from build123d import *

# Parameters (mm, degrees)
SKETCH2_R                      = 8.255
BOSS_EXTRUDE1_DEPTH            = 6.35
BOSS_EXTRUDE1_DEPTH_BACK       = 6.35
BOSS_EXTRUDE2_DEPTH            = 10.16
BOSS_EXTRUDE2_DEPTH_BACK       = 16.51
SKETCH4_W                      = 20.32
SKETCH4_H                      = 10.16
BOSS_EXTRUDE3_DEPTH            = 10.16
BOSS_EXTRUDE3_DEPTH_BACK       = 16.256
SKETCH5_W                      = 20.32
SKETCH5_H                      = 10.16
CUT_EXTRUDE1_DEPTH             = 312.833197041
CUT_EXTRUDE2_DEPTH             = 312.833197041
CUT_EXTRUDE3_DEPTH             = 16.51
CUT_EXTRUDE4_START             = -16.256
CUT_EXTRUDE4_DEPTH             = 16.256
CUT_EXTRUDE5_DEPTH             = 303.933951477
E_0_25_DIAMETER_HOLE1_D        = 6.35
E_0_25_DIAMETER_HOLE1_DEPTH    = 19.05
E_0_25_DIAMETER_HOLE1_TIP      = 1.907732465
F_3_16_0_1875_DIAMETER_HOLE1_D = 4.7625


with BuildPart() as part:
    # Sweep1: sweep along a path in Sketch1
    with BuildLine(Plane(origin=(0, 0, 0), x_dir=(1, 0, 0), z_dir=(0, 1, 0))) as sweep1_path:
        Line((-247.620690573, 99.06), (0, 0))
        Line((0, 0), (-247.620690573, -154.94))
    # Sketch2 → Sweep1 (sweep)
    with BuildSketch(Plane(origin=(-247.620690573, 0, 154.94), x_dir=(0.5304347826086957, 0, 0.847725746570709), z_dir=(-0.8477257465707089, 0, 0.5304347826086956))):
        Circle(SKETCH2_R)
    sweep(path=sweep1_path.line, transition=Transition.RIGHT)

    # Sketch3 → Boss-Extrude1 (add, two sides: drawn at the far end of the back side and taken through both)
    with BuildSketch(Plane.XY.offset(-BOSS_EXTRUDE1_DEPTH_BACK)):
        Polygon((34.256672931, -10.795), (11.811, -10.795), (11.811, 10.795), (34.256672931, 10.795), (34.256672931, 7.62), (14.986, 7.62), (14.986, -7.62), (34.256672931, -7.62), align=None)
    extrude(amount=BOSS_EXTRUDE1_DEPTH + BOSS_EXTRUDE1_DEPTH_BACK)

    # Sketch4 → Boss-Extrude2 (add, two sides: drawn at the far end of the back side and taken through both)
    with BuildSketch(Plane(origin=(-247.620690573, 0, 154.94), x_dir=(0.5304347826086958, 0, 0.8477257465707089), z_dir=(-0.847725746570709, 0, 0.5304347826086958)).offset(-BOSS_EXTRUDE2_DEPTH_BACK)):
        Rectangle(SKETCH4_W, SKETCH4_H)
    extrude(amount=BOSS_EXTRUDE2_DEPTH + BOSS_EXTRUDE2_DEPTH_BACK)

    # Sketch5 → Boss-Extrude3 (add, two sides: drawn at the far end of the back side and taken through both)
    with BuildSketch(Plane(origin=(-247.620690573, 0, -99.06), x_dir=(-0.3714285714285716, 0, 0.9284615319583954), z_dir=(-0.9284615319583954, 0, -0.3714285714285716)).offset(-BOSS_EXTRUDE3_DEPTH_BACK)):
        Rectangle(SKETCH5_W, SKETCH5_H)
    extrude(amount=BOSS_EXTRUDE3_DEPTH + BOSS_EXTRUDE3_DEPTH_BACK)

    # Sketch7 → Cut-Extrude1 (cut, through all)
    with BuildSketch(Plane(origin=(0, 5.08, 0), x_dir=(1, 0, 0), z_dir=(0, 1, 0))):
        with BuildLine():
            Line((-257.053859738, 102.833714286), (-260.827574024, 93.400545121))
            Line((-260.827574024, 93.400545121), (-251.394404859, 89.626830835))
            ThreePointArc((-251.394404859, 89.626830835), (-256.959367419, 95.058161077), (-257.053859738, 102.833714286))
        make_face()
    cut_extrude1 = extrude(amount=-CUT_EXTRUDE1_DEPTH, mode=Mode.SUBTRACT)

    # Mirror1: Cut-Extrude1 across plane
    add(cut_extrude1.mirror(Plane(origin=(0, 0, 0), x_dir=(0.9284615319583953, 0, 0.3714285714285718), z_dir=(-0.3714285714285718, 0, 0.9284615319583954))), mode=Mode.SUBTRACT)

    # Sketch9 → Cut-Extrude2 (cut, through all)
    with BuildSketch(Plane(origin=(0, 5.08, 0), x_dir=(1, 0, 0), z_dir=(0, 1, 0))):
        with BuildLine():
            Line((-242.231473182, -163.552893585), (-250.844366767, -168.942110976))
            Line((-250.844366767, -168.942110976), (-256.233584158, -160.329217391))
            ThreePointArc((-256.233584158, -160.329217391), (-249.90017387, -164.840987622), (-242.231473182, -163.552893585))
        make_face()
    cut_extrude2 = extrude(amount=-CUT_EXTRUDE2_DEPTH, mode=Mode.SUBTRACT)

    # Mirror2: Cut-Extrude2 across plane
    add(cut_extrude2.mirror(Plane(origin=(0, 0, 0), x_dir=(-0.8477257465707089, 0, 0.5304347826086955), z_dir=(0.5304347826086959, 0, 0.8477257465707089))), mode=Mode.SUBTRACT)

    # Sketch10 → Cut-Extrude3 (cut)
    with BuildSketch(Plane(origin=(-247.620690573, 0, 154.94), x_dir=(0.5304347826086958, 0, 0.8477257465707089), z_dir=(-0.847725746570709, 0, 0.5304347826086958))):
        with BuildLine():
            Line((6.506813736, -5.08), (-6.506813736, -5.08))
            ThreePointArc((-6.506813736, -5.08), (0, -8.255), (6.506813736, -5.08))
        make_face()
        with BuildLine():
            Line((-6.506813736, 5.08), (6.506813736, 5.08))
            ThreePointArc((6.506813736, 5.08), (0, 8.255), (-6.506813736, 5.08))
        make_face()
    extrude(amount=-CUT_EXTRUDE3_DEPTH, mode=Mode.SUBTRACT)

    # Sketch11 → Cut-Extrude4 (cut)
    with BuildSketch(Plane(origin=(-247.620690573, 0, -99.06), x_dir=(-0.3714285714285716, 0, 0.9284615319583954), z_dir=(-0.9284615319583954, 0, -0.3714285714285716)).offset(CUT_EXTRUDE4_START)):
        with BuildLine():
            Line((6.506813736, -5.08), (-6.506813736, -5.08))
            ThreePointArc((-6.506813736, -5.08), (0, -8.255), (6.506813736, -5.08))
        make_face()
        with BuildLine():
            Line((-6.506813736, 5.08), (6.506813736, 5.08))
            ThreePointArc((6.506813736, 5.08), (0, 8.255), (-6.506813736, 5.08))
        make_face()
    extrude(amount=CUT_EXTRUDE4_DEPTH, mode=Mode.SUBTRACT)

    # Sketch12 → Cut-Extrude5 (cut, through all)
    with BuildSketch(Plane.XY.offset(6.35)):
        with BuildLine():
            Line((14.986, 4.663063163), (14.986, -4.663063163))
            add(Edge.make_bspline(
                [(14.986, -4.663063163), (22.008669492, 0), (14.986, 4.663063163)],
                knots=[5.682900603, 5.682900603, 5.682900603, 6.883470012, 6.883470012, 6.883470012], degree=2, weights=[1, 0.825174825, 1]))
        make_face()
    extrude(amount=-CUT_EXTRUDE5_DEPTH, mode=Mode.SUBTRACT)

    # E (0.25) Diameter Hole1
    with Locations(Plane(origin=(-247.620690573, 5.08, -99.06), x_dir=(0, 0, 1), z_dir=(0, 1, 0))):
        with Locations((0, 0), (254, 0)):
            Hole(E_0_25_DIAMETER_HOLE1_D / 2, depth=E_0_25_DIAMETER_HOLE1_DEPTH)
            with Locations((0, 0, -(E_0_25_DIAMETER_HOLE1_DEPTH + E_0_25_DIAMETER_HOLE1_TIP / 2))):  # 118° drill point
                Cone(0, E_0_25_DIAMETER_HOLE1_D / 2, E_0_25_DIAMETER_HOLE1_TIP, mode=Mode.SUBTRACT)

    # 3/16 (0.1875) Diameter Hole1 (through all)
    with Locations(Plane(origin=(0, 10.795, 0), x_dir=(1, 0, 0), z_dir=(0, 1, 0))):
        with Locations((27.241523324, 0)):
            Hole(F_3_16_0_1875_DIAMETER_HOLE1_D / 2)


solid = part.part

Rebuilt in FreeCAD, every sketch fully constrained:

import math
import FreeCAD as App
import Part
import Sketcher
from FreeCAD import Vector
Q = App.Units.Quantity

doc = App.newDocument("Part")
params = doc.addObject("Spreadsheet::Sheet", "Params")
for row, (alias, value) in enumerate([
    ("sketch1_diameter", "0.65 in"),
    ("sketch2_length", "10.5 in"),
    ("sketch2_length2", "11.5 in"),
    ("sketch3_height", "0.6 in"),
    ("sketch3_height2", "0.85 in"),
    ("pad1_length", "0.25 in"),
    ("pad1_length2", "0.25 in"),
    ("sketch4_width", "0.8 in"),
    ("sketch4_height", "0.4 in"),
    ("pad2_length", "0.4 in"),
    ("pad2_length2", "0.65 in"),
    ("sketch5_width", "0.8 in"),
    ("sketch5_height", "0.4 in"),
    ("pad3_length", "0.4 in"),
    ("pad3_length2", "0.64 in"),
    ("sketch6_radius", "0.4 in"),
    ("sketch7_radius", "0.4 in"),
    ("sketch8_radius", "0.325 in"),
    ("pocket3_length", "0.65 in"),
    ("sketch9_radius", "0.325 in"),
    ("pocket4_length", "0.64 in"),
    ("sketch11_diameter", "0.25 in"),
    ("hole_diameter", "0.25 in"),
    ("hole_depth", "0.75 in"),
    ("sketch12_diameter", "0.1875 in"),
    ("hole2_diameter", "0.1875 in"),
], start=1):
    params.set(f"A{row}", alias)
    params.set(f"B{row}", "=" + value)
    params.setAlias(f"B{row}", alias)

body = doc.addObject("PartDesign::Body", "Body")

sketch1 = doc.addObject("Sketcher::SketchObject", "Sketch")
body.addObject(sketch1)
sketch1.Placement = App.Placement(Vector(-247.620691, 0, 154.94), App.Rotation(Vector(0.530434783, 0, 0.847725747), Vector(0, 1.000000001, 0), Vector(-0.847725747, 0, 0.530434783), "ZXY"))
sketch1.addGeometry(Part.Circle(Vector(0, 0, 0), Vector(0, 0, 1), 8), False)
sketch1.addConstraint([
    Sketcher.Constraint("Coincident", 0, 3, -1, 1),
    Sketcher.Constraint("Diameter", 0, Q("0.65 in")),
])
sketch1.setExpression("Constraints[1]", "Params.sketch1_diameter")

sketch2 = doc.addObject("Sketcher::SketchObject", "Sketch001")
body.addObject(sketch2)
sketch2.AttachmentSupport = (doc.XZ_Plane, [""])
sketch2.MapMode = "FlatFace"
sketch2.addGeometry([
    Part.LineSegment(Vector(-248, -99, 0), Vector(0, 0, 0)),
    Part.LineSegment(Vector(0, 0, 0), Vector(-248, 155, 0)),
], False)
sketch2.addConstraint([
    Sketcher.Constraint("Coincident", 0, 2, 1, 1),
    Sketcher.Constraint("Coincident", 0, 2, -1, 1),
    Sketcher.Constraint("Vertical", 0, 1, 1, 2),
    Sketcher.Constraint("DistanceY", 0, 1, 1, 2, Q("10 in")),
    Sketcher.Constraint("Distance", 0, Q("10.5 in")),
    Sketcher.Constraint("Distance", 1, Q("11.5 in")),
])
sketch2.setExpression("Constraints[4]", "Params.sketch2_length")
sketch2.setExpression("Constraints[5]", "Params.sketch2_length2")
doc.recompute()

additivepipe = doc.addObject("PartDesign::AdditivePipe", "AdditivePipe")
body.addObject(additivepipe)
additivepipe.Profile = sketch1
additivepipe.Spine = (sketch2, ["Edge1", "Edge2"])
additivepipe.Transition = "Right corner"

sketch3 = doc.addObject("Sketcher::SketchObject", "Sketch002")
body.addObject(sketch3)
sketch3.AttachmentSupport = (doc.XY_Plane, [""])
sketch3.MapMode = "FlatFace"
sketch3.addGeometry([
    Part.LineSegment(Vector(11.8, -10.8, 0), Vector(34.3, -10.8, 0)),
    Part.LineSegment(Vector(34.3, -10.8, 0), Vector(34.3, -7.6, 0)),
    Part.LineSegment(Vector(34.3, -7.6, 0), Vector(15, -7.6, 0)),
    Part.LineSegment(Vector(15, -7.6, 0), Vector(15, 7.6, 0)),
    Part.LineSegment(Vector(15, 7.6, 0), Vector(34.3, 7.6, 0)),
    Part.LineSegment(Vector(34.3, 7.6, 0), Vector(34.3, 10.8, 0)),
    Part.LineSegment(Vector(34.3, 10.8, 0), Vector(11.8, 10.8, 0)),
    Part.LineSegment(Vector(11.8, 10.8, 0), Vector(11.8, -10.8, 0)),
], False)
sketch3.addConstraint([
    Sketcher.Constraint("Coincident", 0, 2, 1, 1),
    Sketcher.Constraint("Coincident", 1, 2, 2, 1),
    Sketcher.Constraint("Coincident", 2, 2, 3, 1),
    Sketcher.Constraint("Coincident", 3, 2, 4, 1),
    Sketcher.Constraint("Coincident", 4, 2, 5, 1),
    Sketcher.Constraint("Coincident", 5, 2, 6, 1),
    Sketcher.Constraint("Coincident", 6, 2, 7, 1),
    Sketcher.Constraint("Coincident", 7, 2, 0, 1),
    Sketcher.Constraint("Horizontal", 0),
    Sketcher.Constraint("Vertical", 1),
    Sketcher.Constraint("Horizontal", 2),
    Sketcher.Constraint("Vertical", 3),
    Sketcher.Constraint("Horizontal", 4),
    Sketcher.Constraint("Vertical", 5),
    Sketcher.Constraint("Horizontal", 6),
    Sketcher.Constraint("Vertical", 7),
    Sketcher.Constraint("Symmetric", 1, 2, 4, 2, -1),
    Sketcher.Constraint("Equal", 1, 5),
    Sketcher.Constraint("DistanceY", 3, 1, 3, 2, Q("0.6 in")),
    Sketcher.Constraint("DistanceY", 7, 2, 7, 1, Q("0.85 in")),
    Sketcher.Constraint("DistanceX", -1, 1, 2, 2, Q("0.59 in")),
    Sketcher.Constraint("DistanceX", -1, 1, 6, 2, Q("0.465 in")),
    Sketcher.Constraint("DistanceX", 0, 1, 0, 2, 22.445673),
])
sketch3.setExpression("Constraints[18]", "Params.sketch3_height")
sketch3.setExpression("Constraints[19]", "Params.sketch3_height2")
pad1 = doc.addObject("PartDesign::Pad", "Pad")
body.addObject(pad1)
pad1.Profile = sketch3
pad1.Type = "TwoLengths"
pad1.setExpression("Length", "Params.pad1_length")
pad1.setExpression("Length2", "Params.pad1_length2")

sketch4 = doc.addObject("Sketcher::SketchObject", "Sketch003")
body.addObject(sketch4)
sketch4.Placement = App.Placement(Vector(-247.620691, 0, 154.94), App.Rotation(Vector(0.530434783, 0, 0.847725747), Vector(0, 1.000000001, 0), Vector(-0.847725747, 0, 0.530434783), "ZXY"))
sketch4.addGeometry([
    Part.LineSegment(Vector(-10, 5, 0), Vector(-10, -5, 0)),
    Part.LineSegment(Vector(-10, -5, 0), Vector(10, -5, 0)),
    Part.LineSegment(Vector(10, -5, 0), Vector(10, 5, 0)),
    Part.LineSegment(Vector(10, 5, 0), Vector(-10, 5, 0)),
], False)
sketch4.addConstraint([
    Sketcher.Constraint("Coincident", 0, 2, 1, 1),
    Sketcher.Constraint("Coincident", 1, 2, 2, 1),
    Sketcher.Constraint("Coincident", 2, 2, 3, 1),
    Sketcher.Constraint("Coincident", 3, 2, 0, 1),
    Sketcher.Constraint("Vertical", 0),
    Sketcher.Constraint("Horizontal", 1),
    Sketcher.Constraint("Vertical", 2),
    Sketcher.Constraint("Horizontal", 3),
    Sketcher.Constraint("Symmetric", 0, 2, 2, 2, -1, 1),
    Sketcher.Constraint("DistanceX", 1, 1, 1, 2, Q("0.8 in")),
    Sketcher.Constraint("DistanceY", 0, 2, 0, 1, Q("0.4 in")),
])
sketch4.setExpression("Constraints[9]", "Params.sketch4_width")
sketch4.setExpression("Constraints[10]", "Params.sketch4_height")
pad2 = doc.addObject("PartDesign::Pad", "Pad001")
body.addObject(pad2)
pad2.Profile = sketch4
pad2.Type = "TwoLengths"
pad2.setExpression("Length", "Params.pad2_length")
pad2.setExpression("Length2", "Params.pad2_length2")

sketch5 = doc.addObject("Sketcher::SketchObject", "Sketch004")
body.addObject(sketch5)
sketch5.Placement = App.Placement(Vector(-247.620691, 0, -99.06), App.Rotation(Vector(-0.371428571, 0, 0.928461532), Vector(0, 1, 0), Vector(-0.928461532, 0, -0.371428571), "ZXY"))
sketch5.addGeometry([
    Part.LineSegment(Vector(-10, 5, 0), Vector(-10, -5, 0)),
    Part.LineSegment(Vector(-10, -5, 0), Vector(10, -5, 0)),
    Part.LineSegment(Vector(10, -5, 0), Vector(10, 5, 0)),
    Part.LineSegment(Vector(10, 5, 0), Vector(-10, 5, 0)),
], False)
sketch5.addConstraint([
    Sketcher.Constraint("Coincident", 0, 2, 1, 1),
    Sketcher.Constraint("Coincident", 1, 2, 2, 1),
    Sketcher.Constraint("Coincident", 2, 2, 3, 1),
    Sketcher.Constraint("Coincident", 3, 2, 0, 1),
    Sketcher.Constraint("Vertical", 0),
    Sketcher.Constraint("Horizontal", 1),
    Sketcher.Constraint("Vertical", 2),
    Sketcher.Constraint("Horizontal", 3),
    Sketcher.Constraint("Symmetric", 0, 2, 2, 2, -1, 1),
    Sketcher.Constraint("DistanceX", 1, 1, 1, 2, Q("0.8 in")),
    Sketcher.Constraint("DistanceY", 0, 2, 0, 1, Q("0.4 in")),
])
sketch5.setExpression("Constraints[9]", "Params.sketch5_width")
sketch5.setExpression("Constraints[10]", "Params.sketch5_height")
pad3 = doc.addObject("PartDesign::Pad", "Pad002")
body.addObject(pad3)
pad3.Profile = sketch5
pad3.Type = "TwoLengths"
pad3.setExpression("Length", "Params.pad3_length")
pad3.setExpression("Length2", "Params.pad3_length2")

sketch6 = doc.addObject("Sketcher::SketchObject", "Sketch005")
body.addObject(sketch6)
sketch6.AttachmentSupport = (doc.XZ_Plane, [""])
sketch6.MapMode = "FlatFace"
sketch6.AttachmentOffset = App.Placement(Vector(0, 0, -0.2 * 25.4), App.Rotation())
sketch6.addGeometry([
    Part.LineSegment(Vector(-257, -103, 0), Vector(-261, -93, 0)),
    Part.LineSegment(Vector(-261, -93, 0), Vector(-251, -90, 0)),
    Part.ArcOfCircle(Part.Circle(Vector(-248, -99, 0), Vector(0, 0, 1), 10), math.radians(112), math.radians(202)),
], False)
sketch6.addConstraint([
    Sketcher.Constraint("Coincident", 0, 2, 1, 1),
    Sketcher.Constraint("Tangent", 1, 2, 2, 1),
    Sketcher.Constraint("Tangent", 2, 2, 0, 1),
    Sketcher.Constraint("Perpendicular", 0, 1),
    Sketcher.Constraint("Radius", 2, Q("0.4 in")),
    Sketcher.Constraint("DistanceY", 2, 3, -1, 1, Q("3.9 in")),
    Sketcher.Constraint("DistanceX", 2, 3, -1, 1, 247.620691),
    Sketcher.Constraint("DistanceY", 1, 2, -1, 1, 89.626831),
])
sketch6.setExpression("Constraints[4]", "Params.sketch6_radius")
pocket1 = doc.addObject("PartDesign::Pocket", "Pocket")
body.addObject(pocket1)
pocket1.Profile = sketch6
pocket1.Type = "ThroughAll"
pocket1.Reversed = True
doc.recompute()

datumplane = doc.addObject("PartDesign::Plane", "DatumPlane")
body.addObject(datumplane)
datumplane.Placement = App.Placement(Vector(0, 0, 0), App.Rotation(Vector(-0.928461532, 0, -0.371428571), Vector(0, -1, 0), Vector(-0.371428571, 0, 0.928461532), "ZXY"))
mirrored = doc.addObject("PartDesign::Mirrored", "Mirrored")
body.addObject(mirrored)
mirrored.Originals = [pocket1]
mirrored.MirrorPlane = (datumplane, [""])
body.Tip = mirrored

sketch7 = doc.addObject("Sketcher::SketchObject", "Sketch006")
body.addObject(sketch7)
sketch7.AttachmentSupport = (doc.XZ_Plane, [""])
sketch7.MapMode = "FlatFace"
sketch7.AttachmentOffset = App.Placement(Vector(0, 0, -0.2 * 25.4), App.Rotation())
sketch7.addGeometry([
    Part.LineSegment(Vector(-251, 169, 0), Vector(-242, 164, 0)),
    Part.ArcOfCircle(Part.Circle(Vector(-248, 155, 0), Vector(0, 0, 1), 10), math.radians(58), math.radians(148)),
    Part.LineSegment(Vector(-256, 160, 0), Vector(-251, 169, 0)),
], False)
sketch7.addConstraint([
    Sketcher.Constraint("Tangent", 0, 2, 1, 1),
    Sketcher.Constraint("Tangent", 1, 2, 2, 1),
    Sketcher.Constraint("Coincident", 2, 2, 0, 1),
    Sketcher.Constraint("Perpendicular", 0, 2),
    Sketcher.Constraint("Radius", 1, Q("0.4 in")),
    Sketcher.Constraint("DistanceY", -1, 1, 1, 3, Q("6.1 in")),
    Sketcher.Constraint("DistanceX", 1, 3, -1, 1, 247.620691),
    Sketcher.Constraint("DistanceY", -1, 1, 2, 2, 168.942111),
])
sketch7.setExpression("Constraints[4]", "Params.sketch7_radius")
pocket2 = doc.addObject("PartDesign::Pocket", "Pocket001")
body.addObject(pocket2)
pocket2.Profile = sketch7
pocket2.Type = "ThroughAll"
pocket2.Reversed = True
doc.recompute()

datumplane2 = doc.addObject("PartDesign::Plane", "DatumPlane001")
body.addObject(datumplane2)
datumplane2.Placement = App.Placement(Vector(0, 0, 0), App.Rotation(Vector(-0.847725747, 0, 0.530434783), Vector(0, -1.000000001, 0), Vector(0.530434783, 0, 0.847725747), "ZXY"))
mirrored2 = doc.addObject("PartDesign::Mirrored", "Mirrored001")
body.addObject(mirrored2)
mirrored2.Originals = [pocket2]
mirrored2.MirrorPlane = (datumplane2, [""])
body.Tip = mirrored2

sketch8 = doc.addObject("Sketcher::SketchObject", "Sketch007")
body.addObject(sketch8)
sketch8.Placement = App.Placement(Vector(-247.620691, 0, 154.94), App.Rotation(Vector(0.530434783, 0, 0.847725747), Vector(0, 1.000000001, 0), Vector(-0.847725747, 0, 0.530434783), "ZXY"))
sketch8.addGeometry([
    Part.LineSegment(Vector(7, -5, 0), Vector(-7, -5, 0)),
    Part.ArcOfCircle(Part.Circle(Vector(0, 0, 0), Vector(0, 0, 1), 8), math.radians(-142), math.radians(-38)),
    Part.LineSegment(Vector(-7, 5, 0), Vector(7, 5, 0)),
    Part.ArcOfCircle(Part.Circle(Vector(0, 0, 0), Vector(0, 0, 1), 8), math.radians(38), math.radians(142)),
], False)
sketch8.addConstraint([
    Sketcher.Constraint("Coincident", 0, 1, 1, 2),
    Sketcher.Constraint("Coincident", 1, 1, 0, 2),
    Sketcher.Constraint("Coincident", 2, 1, 3, 2),
    Sketcher.Constraint("Coincident", 3, 1, 2, 2),
    Sketcher.Constraint("Horizontal", 0),
    Sketcher.Constraint("Horizontal", 2),
    Sketcher.Constraint("Coincident", 1, 3, -1, 1),
    Sketcher.Constraint("Coincident", 3, 3, -1, 1),
    Sketcher.Constraint("Equal", 1, 3),
    Sketcher.Constraint("Vertical", 1, 1, 2, 1),
    Sketcher.Constraint("Radius", 1, Q("0.325 in")),
    Sketcher.Constraint("DistanceY", 0, 1, -1, 1, Q("0.2 in")),
])
sketch8.setExpression("Constraints[10]", "Params.sketch8_radius")
pocket3 = doc.addObject("PartDesign::Pocket", "Pocket002")
body.addObject(pocket3)
pocket3.Profile = sketch8
pocket3.setExpression("Length", "Params.pocket3_length")

sketch9 = doc.addObject("Sketcher::SketchObject", "Sketch008")
body.addObject(sketch9)
sketch9.Placement = App.Placement(Vector(-232.52762, 0, -93.022057), App.Rotation(Vector(-0.371428571, 0, 0.928461532), Vector(0, 1, 0), Vector(-0.928461532, 0, -0.371428571), "ZXY"))
sketch9.addGeometry([
    Part.LineSegment(Vector(7, -5, 0), Vector(-7, -5, 0)),
    Part.ArcOfCircle(Part.Circle(Vector(0, 0, 0), Vector(0, 0, 1), 8), math.radians(-142), math.radians(-38)),
    Part.LineSegment(Vector(-7, 5, 0), Vector(7, 5, 0)),
    Part.ArcOfCircle(Part.Circle(Vector(0, 0, 0), Vector(0, 0, 1), 8), math.radians(38), math.radians(142)),
], False)
sketch9.addConstraint([
    Sketcher.Constraint("Coincident", 0, 1, 1, 2),
    Sketcher.Constraint("Coincident", 1, 1, 0, 2),
    Sketcher.Constraint("Coincident", 2, 1, 3, 2),
    Sketcher.Constraint("Coincident", 3, 1, 2, 2),
    Sketcher.Constraint("Horizontal", 0),
    Sketcher.Constraint("Horizontal", 2),
    Sketcher.Constraint("Coincident", 1, 3, -1, 1),
    Sketcher.Constraint("Coincident", 3, 3, -1, 1),
    Sketcher.Constraint("Equal", 1, 3),
    Sketcher.Constraint("Vertical", 1, 1, 2, 1),
    Sketcher.Constraint("Radius", 1, Q("0.325 in")),
    Sketcher.Constraint("DistanceY", 0, 1, -1, 1, Q("0.2 in")),
])
sketch9.setExpression("Constraints[10]", "Params.sketch9_radius")
pocket4 = doc.addObject("PartDesign::Pocket", "Pocket003")
body.addObject(pocket4)
pocket4.Profile = sketch9
pocket4.setExpression("Length", "Params.pocket4_length")
pocket4.Reversed = True

sketch10 = doc.addObject("Sketcher::SketchObject", "Sketch009")
body.addObject(sketch10)
sketch10.AttachmentSupport = (doc.XY_Plane, [""])
sketch10.MapMode = "FlatFace"
sketch10.AttachmentOffset = App.Placement(Vector(0, 0, 0.25 * 25.4), App.Rotation())
sketch10.addGeometry([
    Part.LineSegment(Vector(14.986, 4.663063, 0), Vector(14.986, -4.663063, 0)),
    Part.BSplineCurve([Vector(14.986, -4.663063, 0), Vector(22.008669, 0, 0), Vector(14.986, 4.663063, 0)], [3, 3], [5.682900603, 6.883470012], False, 2, [1, 0.825174825, 1], False),
], False)
sketch10.addConstraint([
    Sketcher.Constraint("Block", 1),
    Sketcher.Constraint("Coincident", 0, 1, 1, 2),
    Sketcher.Constraint("Coincident", 1, 1, 0, 2),
])
pocket5 = doc.addObject("PartDesign::Pocket", "Pocket004")
body.addObject(pocket5)
pocket5.Profile = sketch10
pocket5.Type = "ThroughAll"

sketch11 = doc.addObject("Sketcher::SketchObject", "Sketch010")
body.addObject(sketch11)
sketch11.AttachmentSupport = (doc.XZ_Plane, [""])
sketch11.MapMode = "FlatFace"
sketch11.AttachmentOffset = App.Placement(Vector(0, 0, -0.2 * 25.4), App.Rotation())
sketch11.addGeometry([
    Part.Circle(Vector(-247.6, -99.1, 0), Vector(0, 0, 1), 3.2),
    Part.Circle(Vector(-247.6, 154.9, 0), Vector(0, 0, 1), 3.2),
], False)
sketch11.addConstraint([
    Sketcher.Constraint("Equal", 0, 1),
    Sketcher.Constraint("Vertical", 0, 3, 1, 3),
    Sketcher.Constraint("Diameter", 0, Q("0.25 in")),
    Sketcher.Constraint("DistanceY", 0, 3, 1, 3, Q("10 in")),
    Sketcher.Constraint("DistanceY", 0, 3, -1, 1, Q("3.9 in")),
    Sketcher.Constraint("DistanceX", 0, 3, -1, 1, 247.620691),
])
sketch11.setExpression("Constraints[2]", "Params.sketch11_diameter")
doc.recompute()
hole = doc.addObject("PartDesign::Hole", "Hole")
body.addObject(hole)
hole.Profile = sketch11
hole.ThreadType = "None"
hole.setExpression("Diameter", "Params.hole_diameter")
hole.DepthType = "Dimension"
hole.setExpression("Depth", "Params.hole_depth")
hole.DrillPoint = "Angled"
hole.DrillPointAngle = 118
hole.Reversed = True

sketch12 = doc.addObject("Sketcher::SketchObject", "Sketch011")
body.addObject(sketch12)
sketch12.AttachmentSupport = (doc.XZ_Plane, [""])
sketch12.MapMode = "FlatFace"
sketch12.AttachmentOffset = App.Placement(Vector(0, 0, -0.425 * 25.4), App.Rotation())
sketch12.addGeometry(Part.Circle(Vector(27.2, 0, 0), Vector(0, 0, 1), 2.4), False)
sketch12.addConstraint([
    Sketcher.Constraint("PointOnObject", 0, 3, -1),
    Sketcher.Constraint("Diameter", 0, Q("0.1875 in")),
    Sketcher.Constraint("DistanceX", -1, 1, 0, 3, 27.241523),
])
sketch12.setExpression("Constraints[1]", "Params.sketch12_diameter")
doc.recompute()
hole2 = doc.addObject("PartDesign::Hole", "Hole001")
body.addObject(hole2)
hole2.Profile = sketch12
hole2.ThreadType = "None"
hole2.setExpression("Diameter", "Params.hole2_diameter")
hole2.DepthType = "ThroughAll"
hole2.Reversed = True

doc.recompute()
